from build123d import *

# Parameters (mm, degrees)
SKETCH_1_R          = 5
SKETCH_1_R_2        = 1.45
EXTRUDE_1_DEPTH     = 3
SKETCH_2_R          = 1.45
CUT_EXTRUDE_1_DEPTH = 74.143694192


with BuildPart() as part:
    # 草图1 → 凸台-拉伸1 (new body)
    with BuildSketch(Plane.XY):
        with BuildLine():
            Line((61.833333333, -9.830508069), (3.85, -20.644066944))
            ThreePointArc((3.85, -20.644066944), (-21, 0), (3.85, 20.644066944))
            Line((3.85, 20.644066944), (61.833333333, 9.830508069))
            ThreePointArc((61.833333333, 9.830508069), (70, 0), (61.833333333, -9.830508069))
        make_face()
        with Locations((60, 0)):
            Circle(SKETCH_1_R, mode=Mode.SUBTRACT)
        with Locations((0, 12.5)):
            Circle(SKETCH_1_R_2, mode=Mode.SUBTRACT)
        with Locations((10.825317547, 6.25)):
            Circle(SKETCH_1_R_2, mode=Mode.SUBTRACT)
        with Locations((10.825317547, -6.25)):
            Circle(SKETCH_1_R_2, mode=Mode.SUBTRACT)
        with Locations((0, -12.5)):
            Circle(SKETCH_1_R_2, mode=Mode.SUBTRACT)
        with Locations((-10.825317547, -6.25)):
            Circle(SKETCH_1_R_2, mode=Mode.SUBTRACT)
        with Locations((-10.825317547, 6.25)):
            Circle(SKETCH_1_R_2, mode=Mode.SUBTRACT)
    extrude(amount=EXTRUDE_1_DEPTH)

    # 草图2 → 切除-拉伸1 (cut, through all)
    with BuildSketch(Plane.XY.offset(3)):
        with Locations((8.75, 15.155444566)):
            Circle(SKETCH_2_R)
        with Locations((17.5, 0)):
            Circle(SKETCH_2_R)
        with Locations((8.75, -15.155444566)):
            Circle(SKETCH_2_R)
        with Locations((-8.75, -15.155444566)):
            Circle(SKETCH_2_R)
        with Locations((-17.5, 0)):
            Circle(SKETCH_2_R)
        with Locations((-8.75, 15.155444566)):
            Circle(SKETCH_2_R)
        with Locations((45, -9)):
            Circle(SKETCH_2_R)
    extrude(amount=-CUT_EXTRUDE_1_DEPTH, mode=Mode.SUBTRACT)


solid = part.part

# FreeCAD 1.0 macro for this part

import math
import FreeCAD as App
import Part
import Sketcher
from FreeCAD import Vector

doc = App.newDocument("Part")
params = doc.addObject("Spreadsheet::Sheet", "Params")
for row, (alias, value) in enumerate([
    ("sketch1_diameter", "10 mm"),
    ("sketch1_radius", "10 mm"),
    ("sketch1_radius2", "21 mm"),
    ("sketch1_diameter2", "2.9 mm"),
    ("pad1_length", "3 mm"),
    ("sketch2_diameter", "2.9 mm"),
], start=1):
    params.set(f"A{row}", alias)
    params.set(f"B{row}", "=" + value)
    params.setAlias(f"B{row}", alias)

body = doc.addObject("PartDesign::Body", "Body")

# Sketch on XY plane
sketch1 = body.newObject("Sketcher::SketchObject", "Sketch")
sketch1.AttachmentSupport = (doc.getObject("XY_Plane"), [""])
sketch1.MapMode = "FlatFace"
sketch1.addGeometry(Part.LineSegment(Vector(3.9, -20.6, 0), Vector(61.8, -9.8, 0)), False)
sketch1.addGeometry(Part.ArcOfCircle(Part.Circle(Vector(60, 0, 0), Vector(0, 0, 1), 10), math.radians(-79), math.radians(79)), False)
sketch1.addGeometry(Part.LineSegment(Vector(61.8, 9.8, 0), Vector(3.9, 20.6, 0)), False)
sketch1.addGeometry(Part.ArcOfCircle(Part.Circle(Vector(0, 0, 0), Vector(0, 0, 1), 21), math.radians(79), math.radians(281)), False)
sketch1.addGeometry(Part.Circle(Vector(0, -12.5, 0), Vector(0, 0, 1), 1.4), False)
sketch1.addGeometry(Part.Circle(Vector(10.8, -6.2, 0), Vector(0, 0, 1), 1.4), False)
sketch1.addGeometry(Part.Circle(Vector(-10.8, -6.2, 0), Vector(0, 0, 1), 1.4), False)
sketch1.addGeometry(Part.Circle(Vector(60, 0, 0), Vector(0, 0, 1), 5), False)
sketch1.addGeometry(Part.Circle(Vector(10.8, 6.2, 0), Vector(0, 0, 1), 1.4), False)
sketch1.addGeometry(Part.Circle(Vector(-10.8, 6.2, 0), Vector(0, 0, 1), 1.4), False)
sketch1.addGeometry(Part.Circle(Vector(0, 12.5, 0), Vector(0, 0, 1), 1.4), False)
sketch1.addConstraint(Sketcher.Constraint("Tangent", 0, 2, 1, 1))
sketch1.addConstraint(Sketcher.Constraint("Tangent", 1, 2, 2, 1))
sketch1.addConstraint(Sketcher.Constraint("Tangent", 2, 2, 3, 1))
sketch1.addConstraint(Sketcher.Constraint("Tangent", 3, 2, 0, 1))
sketch1.addConstraint(Sketcher.Constraint("Coincident", 3, 3, -1, 1))
sketch1.addConstraint(Sketcher.Constraint("Coincident", 7, 3, 1, 3))
sketch1.addConstraint(Sketcher.Constraint("Equal", 4, 5))
sketch1.addConstraint(Sketcher.Constraint("Equal", 5, 6))
sketch1.addConstraint(Sketcher.Constraint("Equal", 6, 8))
sketch1.addConstraint(Sketcher.Constraint("Equal", 8, 9))
sketch1.addConstraint(Sketcher.Constraint("Equal", 9, 10))
sketch1.addConstraint(Sketcher.Constraint("Symmetric", 6, 3, 8, 3, -1, 1))
sketch1.addConstraint(Sketcher.Constraint("Symmetric", 5, 3, 9, 3, -1, 1))
sketch1.addConstraint(Sketcher.Constraint("Symmetric", 4, 3, 10, 3, -1, 1))
sketch1.addConstraint(Sketcher.Constraint("Symmetric", 5, 3, 6, 3, -2))
sketch1.addConstraint(Sketcher.Constraint("PointOnObject", 1, 3, -1))
sketch1.addConstraint(Sketcher.Constraint("PointOnObject", 4, 3, -2))
sketch1.addConstraint(Sketcher.Constraint("Diameter", 7, 10.0))
sketch1.addConstraint(Sketcher.Constraint("Radius", 1, 10.0))
sketch1.addConstraint(Sketcher.Constraint("Radius", 3, 21.0))
sketch1.addConstraint(Sketcher.Constraint("Diameter", 4, 2.9))
sketch1.addConstraint(Sketcher.Constraint("DistanceX", -1, 1, 1, 3, 60.0))
sketch1.addConstraint(Sketcher.Constraint("DistanceY", 4, 3, -1, 1, 12.5))
sketch1.addConstraint(Sketcher.Constraint("DistanceY", 5, 3, 8, 3, 12.5))
sketch1.addConstraint(Sketcher.Constraint("DistanceX", -1, 1, 5, 3, 10.825318))
sketch1.setExpression("Constraints[17]", "Params.sketch1_diameter")
sketch1.setExpression("Constraints[18]", "Params.sketch1_radius")
sketch1.setExpression("Constraints[19]", "Params.sketch1_radius2")
sketch1.setExpression("Constraints[20]", "Params.sketch1_diameter2")
pad1 = body.newObject("PartDesign::Pad", "Pad")
pad1.Profile = sketch1
pad1.setExpression("Length", "Params.pad1_length")

# Sketch on XY plane
sketch2 = body.newObject("Sketcher::SketchObject", "Sketch001")
sketch2.AttachmentSupport = (doc.getObject("XY_Plane"), [""])
sketch2.MapMode = "FlatFace"
sketch2.AttachmentOffset = App.Placement(Vector(0, 0, 3), App.Rotation())
sketch2.addGeometry(Part.Circle(Vector(8.8, 15.2, 0), Vector(0, 0, 1), 1.4), False)
sketch2.addGeometry(Part.Circle(Vector(17.5, 0, 0), Vector(0, 0, 1), 1.4), False)
sketch2.addGeometry(Part.Circle(Vector(8.8, -15.2, 0), Vector(0, 0, 1), 1.4), False)
sketch2.addGeometry(Part.Circle(Vector(-8.8, -15.2, 0), Vector(0, 0, 1), 1.4), False)
sketch2.addGeometry(Part.Circle(Vector(-17.5, 0, 0), Vector(0, 0, 1), 1.4), False)
sketch2.addGeometry(Part.Circle(Vector(-8.8, 15.2, 0), Vector(0, 0, 1), 1.4), False)
sketch2.addGeometry(Part.Circle(Vector(45, -9, 0), Vector(0, 0, 1), 1.4), False)
sketch2.addConstraint(Sketcher.Constraint("Equal", 0, 1))
sketch2.addConstraint(Sketcher.Constraint("Equal", 1, 2))
sketch2.addConstraint(Sketcher.Constraint("Equal", 2, 3))
sketch2.addConstraint(Sketcher.Constraint("Equal", 3, 4))
sketch2.addConstraint(Sketcher.Constraint("Equal", 4, 5))
sketch2.addConstraint(Sketcher.Constraint("Equal", 5, 6))
sketch2.addConstraint(Sketcher.Constraint("Symmetric", 0, 3, 3, 3, -1, 1))
sketch2.addConstraint(Sketcher.Constraint("Symmetric", 1, 3, 4, 3, -1, 1))
sketch2.addConstraint(Sketcher.Constraint("Symmetric", 2, 3, 5, 3, -1, 1))
sketch2.addConstraint(Sketcher.Constraint("Symmetric", 2, 3, 3, 3, -2))
sketch2.addConstraint(Sketcher.Constraint("PointOnObject", 1, 3, -1))
sketch2.addConstraint(Sketcher.Constraint("Diameter", 0, 2.9))
sketch2.addConstraint(Sketcher.Constraint("DistanceX", -1, 1, 6, 3, 45.0))
sketch2.addConstraint(Sketcher.Constraint("DistanceY", 6, 3, -1, 1, 9.0))
sketch2.addConstraint(Sketcher.Constraint("DistanceX", 4, 3, 1, 3, 35.0))
sketch2.addConstraint(Sketcher.Constraint("DistanceX", 3, 3, 2, 3, 17.5))
sketch2.addConstraint(Sketcher.Constraint("DistanceY", 2, 3, 0, 3, 30.310889))
sketch2.setExpression("Constraints[11]", "Params.sketch2_diameter")
pocket1 = body.newObject("PartDesign::Pocket", "Pocket")
pocket1.Profile = sketch2
pocket1.Type = "ThroughAll"

doc.recompute()
